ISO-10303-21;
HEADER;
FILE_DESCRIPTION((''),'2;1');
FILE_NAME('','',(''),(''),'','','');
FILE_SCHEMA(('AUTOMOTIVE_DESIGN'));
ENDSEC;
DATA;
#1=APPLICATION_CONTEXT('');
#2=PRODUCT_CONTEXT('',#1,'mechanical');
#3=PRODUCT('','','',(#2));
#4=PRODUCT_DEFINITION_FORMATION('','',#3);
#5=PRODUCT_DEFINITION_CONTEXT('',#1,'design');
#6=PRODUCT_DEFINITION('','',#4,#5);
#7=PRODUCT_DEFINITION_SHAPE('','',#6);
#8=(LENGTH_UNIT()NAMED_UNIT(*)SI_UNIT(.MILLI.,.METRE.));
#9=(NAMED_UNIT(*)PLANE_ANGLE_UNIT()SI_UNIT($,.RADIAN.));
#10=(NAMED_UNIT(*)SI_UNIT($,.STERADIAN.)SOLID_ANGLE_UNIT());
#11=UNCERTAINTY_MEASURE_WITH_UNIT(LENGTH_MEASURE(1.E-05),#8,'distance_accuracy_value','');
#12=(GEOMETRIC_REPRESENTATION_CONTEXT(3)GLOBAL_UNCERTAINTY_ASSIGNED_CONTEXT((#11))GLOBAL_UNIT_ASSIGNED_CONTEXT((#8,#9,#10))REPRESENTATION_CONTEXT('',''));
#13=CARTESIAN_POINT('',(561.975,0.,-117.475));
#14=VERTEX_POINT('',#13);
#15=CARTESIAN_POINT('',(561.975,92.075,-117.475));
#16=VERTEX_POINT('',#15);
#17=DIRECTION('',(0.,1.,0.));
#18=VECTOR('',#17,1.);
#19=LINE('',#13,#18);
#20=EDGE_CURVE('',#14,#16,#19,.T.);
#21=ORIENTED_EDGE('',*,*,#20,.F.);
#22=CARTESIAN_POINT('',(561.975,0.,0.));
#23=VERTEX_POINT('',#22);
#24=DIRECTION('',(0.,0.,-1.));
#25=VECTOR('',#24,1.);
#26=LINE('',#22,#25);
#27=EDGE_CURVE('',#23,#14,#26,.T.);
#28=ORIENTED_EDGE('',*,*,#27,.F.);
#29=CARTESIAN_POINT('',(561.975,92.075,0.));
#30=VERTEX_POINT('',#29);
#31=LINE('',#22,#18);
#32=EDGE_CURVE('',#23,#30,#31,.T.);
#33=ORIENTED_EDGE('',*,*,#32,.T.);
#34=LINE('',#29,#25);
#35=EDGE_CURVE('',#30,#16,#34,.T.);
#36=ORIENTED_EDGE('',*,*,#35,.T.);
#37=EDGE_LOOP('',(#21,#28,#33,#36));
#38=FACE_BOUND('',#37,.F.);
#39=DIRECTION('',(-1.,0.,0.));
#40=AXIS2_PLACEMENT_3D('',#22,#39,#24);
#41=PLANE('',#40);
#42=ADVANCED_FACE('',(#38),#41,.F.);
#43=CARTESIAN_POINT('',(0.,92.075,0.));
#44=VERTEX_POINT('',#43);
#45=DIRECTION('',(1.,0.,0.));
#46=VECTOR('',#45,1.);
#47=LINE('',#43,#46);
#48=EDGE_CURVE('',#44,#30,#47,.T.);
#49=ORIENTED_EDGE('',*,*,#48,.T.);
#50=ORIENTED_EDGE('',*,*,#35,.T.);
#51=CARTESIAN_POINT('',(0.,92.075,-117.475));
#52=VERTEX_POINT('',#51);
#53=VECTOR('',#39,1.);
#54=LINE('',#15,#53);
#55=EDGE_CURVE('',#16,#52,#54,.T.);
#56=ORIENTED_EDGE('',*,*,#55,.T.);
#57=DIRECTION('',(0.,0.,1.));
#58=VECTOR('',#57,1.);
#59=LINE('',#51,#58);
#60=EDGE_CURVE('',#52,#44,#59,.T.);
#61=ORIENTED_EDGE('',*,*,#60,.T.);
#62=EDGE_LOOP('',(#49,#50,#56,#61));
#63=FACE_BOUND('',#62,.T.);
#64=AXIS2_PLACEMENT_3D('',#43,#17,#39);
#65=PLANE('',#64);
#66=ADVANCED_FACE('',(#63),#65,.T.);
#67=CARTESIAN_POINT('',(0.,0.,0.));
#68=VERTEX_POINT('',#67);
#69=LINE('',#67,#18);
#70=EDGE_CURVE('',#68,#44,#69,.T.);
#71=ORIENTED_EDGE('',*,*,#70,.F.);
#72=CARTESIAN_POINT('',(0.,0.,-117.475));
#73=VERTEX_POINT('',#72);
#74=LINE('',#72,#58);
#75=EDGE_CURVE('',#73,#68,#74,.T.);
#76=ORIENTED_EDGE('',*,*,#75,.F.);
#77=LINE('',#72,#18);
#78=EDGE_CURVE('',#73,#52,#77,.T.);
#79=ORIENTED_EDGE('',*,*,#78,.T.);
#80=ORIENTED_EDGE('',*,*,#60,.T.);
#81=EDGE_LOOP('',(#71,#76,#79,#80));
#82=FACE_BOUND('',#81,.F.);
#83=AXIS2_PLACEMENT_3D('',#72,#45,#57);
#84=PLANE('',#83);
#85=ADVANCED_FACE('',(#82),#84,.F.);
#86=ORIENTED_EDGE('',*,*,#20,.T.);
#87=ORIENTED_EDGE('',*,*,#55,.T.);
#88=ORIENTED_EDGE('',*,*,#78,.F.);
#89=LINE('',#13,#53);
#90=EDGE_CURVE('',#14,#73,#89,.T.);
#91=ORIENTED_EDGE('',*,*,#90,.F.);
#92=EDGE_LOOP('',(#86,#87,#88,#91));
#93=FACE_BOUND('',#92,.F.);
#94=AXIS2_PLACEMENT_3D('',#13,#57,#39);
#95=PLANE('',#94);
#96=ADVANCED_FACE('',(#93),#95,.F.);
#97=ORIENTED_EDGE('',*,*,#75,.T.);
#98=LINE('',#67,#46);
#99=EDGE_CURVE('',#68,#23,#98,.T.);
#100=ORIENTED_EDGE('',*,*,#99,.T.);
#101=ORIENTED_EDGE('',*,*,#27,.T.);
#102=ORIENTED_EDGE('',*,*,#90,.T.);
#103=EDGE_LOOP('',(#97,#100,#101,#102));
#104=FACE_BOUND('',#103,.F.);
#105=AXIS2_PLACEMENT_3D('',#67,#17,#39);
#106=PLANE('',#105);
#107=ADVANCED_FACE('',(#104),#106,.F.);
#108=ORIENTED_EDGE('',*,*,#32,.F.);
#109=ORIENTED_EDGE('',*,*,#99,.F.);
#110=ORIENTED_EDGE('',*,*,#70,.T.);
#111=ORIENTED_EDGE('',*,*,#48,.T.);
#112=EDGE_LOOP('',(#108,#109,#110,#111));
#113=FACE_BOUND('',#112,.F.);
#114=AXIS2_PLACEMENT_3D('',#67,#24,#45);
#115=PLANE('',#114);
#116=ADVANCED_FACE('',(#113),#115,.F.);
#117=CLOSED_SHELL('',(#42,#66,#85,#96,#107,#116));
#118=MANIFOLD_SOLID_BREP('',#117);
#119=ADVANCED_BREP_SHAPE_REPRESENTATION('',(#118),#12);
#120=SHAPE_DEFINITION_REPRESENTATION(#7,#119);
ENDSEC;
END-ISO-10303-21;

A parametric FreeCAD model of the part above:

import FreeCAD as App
import Part
import Sketcher

V = App.Vector
Q = App.Units.Quantity

doc = App.newDocument("Part")
body = doc.addObject("PartDesign::Body", "Body")

# Sketch on XZ plane
sketch1 = doc.addObject("Sketcher::SketchObject", "Sketch")
body.addObject(sketch1)
sketch1.AttachmentSupport = (doc.XZ_Plane, [""])
sketch1.MapMode = "FlatFace"
sketch1.addGeometry(Part.LineSegment(V(0, -117.475, 0), V(0, 0, 0)), False)
sketch1.addGeometry(Part.LineSegment(V(0, 0, 0), V(561.975, 0, 0)), False)
sketch1.addGeometry(Part.LineSegment(V(561.975, 0, 0), V(561.975, -117.475, 0)), False)
sketch1.addGeometry(Part.LineSegment(V(561.975, -117.475, 0), V(0, -117.475, 0)), False)
sketch1.addConstraint(Sketcher.Constraint("Coincident", 0, 2, 1, 1))
sketch1.addConstraint(Sketcher.Constraint("Coincident", 1, 2, 2, 1))
sketch1.addConstraint(Sketcher.Constraint("Coincident", 2, 2, 3, 1))
sketch1.addConstraint(Sketcher.Constraint("Coincident", 3, 2, 0, 1))
sketch1.addConstraint(Sketcher.Constraint("Vertical", 0))
sketch1.addConstraint(Sketcher.Constraint("Horizontal", 1))
sketch1.addConstraint(Sketcher.Constraint("Vertical", 2))
sketch1.addConstraint(Sketcher.Constraint("Horizontal", 3))
sketch1.addConstraint(Sketcher.Constraint("Coincident", 0, 2, -1, 1))
sketch1.addConstraint(Sketcher.Constraint("DistanceX", 1, 1, 1, 2, Q("22.125 in")))
sketch1.addConstraint(Sketcher.Constraint("DistanceY", 0, 1, 0, 2, Q("4.625 in")))
pad1 = doc.addObject("PartDesign::Pad", "Pad")
body.addObject(pad1)
pad1.Profile = sketch1
pad1.Length = Q("3.625 in")
pad1.Reversed = True

doc.recompute()
